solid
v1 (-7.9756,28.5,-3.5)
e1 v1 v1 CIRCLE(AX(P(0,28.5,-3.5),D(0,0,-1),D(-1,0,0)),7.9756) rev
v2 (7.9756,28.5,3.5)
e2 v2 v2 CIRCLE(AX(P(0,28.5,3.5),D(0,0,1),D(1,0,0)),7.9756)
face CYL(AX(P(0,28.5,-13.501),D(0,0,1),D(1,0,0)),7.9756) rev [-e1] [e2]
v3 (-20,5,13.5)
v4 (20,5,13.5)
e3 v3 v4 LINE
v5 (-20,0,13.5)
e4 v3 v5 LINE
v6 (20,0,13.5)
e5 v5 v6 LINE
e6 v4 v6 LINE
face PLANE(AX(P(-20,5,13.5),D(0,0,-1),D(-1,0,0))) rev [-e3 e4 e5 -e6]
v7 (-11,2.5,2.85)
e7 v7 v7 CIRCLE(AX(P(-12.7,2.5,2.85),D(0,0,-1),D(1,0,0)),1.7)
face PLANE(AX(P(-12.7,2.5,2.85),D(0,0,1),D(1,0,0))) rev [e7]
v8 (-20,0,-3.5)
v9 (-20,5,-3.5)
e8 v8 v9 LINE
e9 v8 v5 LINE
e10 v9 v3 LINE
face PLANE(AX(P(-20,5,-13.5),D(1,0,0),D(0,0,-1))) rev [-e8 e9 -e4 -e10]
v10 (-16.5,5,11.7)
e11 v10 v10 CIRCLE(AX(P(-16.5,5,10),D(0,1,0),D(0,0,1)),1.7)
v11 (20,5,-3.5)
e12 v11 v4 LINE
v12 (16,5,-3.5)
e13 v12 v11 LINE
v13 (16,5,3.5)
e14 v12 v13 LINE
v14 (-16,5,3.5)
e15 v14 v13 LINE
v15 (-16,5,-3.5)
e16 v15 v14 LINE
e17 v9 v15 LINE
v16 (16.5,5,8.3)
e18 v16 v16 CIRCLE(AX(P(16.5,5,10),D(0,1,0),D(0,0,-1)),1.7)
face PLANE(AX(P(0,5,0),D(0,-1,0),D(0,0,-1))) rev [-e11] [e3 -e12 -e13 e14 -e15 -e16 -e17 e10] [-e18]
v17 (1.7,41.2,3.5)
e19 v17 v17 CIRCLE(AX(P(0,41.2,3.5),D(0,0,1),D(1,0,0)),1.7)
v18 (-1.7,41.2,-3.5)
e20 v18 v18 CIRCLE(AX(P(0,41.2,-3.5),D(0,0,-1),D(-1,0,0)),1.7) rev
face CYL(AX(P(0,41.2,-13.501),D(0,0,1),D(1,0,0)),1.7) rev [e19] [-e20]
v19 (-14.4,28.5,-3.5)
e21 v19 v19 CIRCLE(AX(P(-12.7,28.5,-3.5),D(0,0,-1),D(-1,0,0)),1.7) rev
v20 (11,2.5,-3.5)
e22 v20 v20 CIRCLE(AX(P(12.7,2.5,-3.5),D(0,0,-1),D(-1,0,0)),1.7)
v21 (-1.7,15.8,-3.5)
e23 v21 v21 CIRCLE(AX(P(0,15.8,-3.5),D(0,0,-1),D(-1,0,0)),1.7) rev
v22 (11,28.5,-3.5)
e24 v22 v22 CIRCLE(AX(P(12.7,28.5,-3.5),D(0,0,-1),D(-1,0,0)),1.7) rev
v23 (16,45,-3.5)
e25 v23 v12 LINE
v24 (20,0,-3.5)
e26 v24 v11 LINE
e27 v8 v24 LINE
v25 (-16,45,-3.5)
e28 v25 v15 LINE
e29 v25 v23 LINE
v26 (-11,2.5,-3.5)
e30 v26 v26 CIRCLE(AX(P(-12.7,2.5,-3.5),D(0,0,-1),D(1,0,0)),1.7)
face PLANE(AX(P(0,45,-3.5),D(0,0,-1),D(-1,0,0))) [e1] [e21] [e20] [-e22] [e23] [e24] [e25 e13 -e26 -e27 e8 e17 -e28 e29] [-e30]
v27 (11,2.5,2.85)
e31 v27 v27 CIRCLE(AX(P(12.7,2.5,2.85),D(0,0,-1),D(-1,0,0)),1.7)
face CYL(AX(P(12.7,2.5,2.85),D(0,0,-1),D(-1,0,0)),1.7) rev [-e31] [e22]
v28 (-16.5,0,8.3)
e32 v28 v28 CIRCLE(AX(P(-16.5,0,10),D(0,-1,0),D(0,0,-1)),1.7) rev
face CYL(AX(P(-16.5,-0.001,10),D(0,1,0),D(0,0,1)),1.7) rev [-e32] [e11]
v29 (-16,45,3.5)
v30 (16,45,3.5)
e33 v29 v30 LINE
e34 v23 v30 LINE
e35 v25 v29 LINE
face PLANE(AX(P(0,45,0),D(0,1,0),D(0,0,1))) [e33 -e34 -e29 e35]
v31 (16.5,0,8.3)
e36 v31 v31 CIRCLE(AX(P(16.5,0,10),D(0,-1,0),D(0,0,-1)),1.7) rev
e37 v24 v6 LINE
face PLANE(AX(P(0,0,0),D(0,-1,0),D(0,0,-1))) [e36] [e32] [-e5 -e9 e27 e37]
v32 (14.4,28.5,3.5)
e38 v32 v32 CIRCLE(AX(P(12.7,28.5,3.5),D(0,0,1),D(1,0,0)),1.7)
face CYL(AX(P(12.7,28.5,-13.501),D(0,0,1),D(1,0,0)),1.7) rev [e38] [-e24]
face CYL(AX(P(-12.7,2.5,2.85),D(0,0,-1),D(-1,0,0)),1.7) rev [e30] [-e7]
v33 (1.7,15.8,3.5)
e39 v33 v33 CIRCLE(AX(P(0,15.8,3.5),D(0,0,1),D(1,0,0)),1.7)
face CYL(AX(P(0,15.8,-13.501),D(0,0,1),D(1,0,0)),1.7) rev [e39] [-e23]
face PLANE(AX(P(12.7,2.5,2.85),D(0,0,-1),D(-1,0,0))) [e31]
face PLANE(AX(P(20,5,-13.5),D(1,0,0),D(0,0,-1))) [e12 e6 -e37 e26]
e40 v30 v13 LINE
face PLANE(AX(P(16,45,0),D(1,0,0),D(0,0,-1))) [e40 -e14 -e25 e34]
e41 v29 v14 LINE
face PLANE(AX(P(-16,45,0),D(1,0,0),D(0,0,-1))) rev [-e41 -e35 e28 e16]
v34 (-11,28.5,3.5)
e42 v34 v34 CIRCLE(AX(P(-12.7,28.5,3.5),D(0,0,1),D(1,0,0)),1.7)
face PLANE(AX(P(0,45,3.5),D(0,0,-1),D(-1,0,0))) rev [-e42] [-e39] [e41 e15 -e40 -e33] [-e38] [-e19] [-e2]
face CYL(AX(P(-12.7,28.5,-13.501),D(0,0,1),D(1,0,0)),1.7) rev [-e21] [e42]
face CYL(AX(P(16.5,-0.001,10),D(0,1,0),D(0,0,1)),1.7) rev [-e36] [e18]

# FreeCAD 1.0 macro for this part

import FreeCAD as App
import Part
import Sketcher
Q = App.Units.Quantity


def add_polygon(sketch, points):
    """Adds a closed chain of lines whose ends are joined by coincident constraints."""
    first, n = sketch.GeometryCount, len(points)
    for a, b in zip(points, points[1:] + points[:1]):
        sketch.addGeometry(Part.LineSegment(App.Vector(*a, 0), App.Vector(*b, 0)), False)
    for i in range(n):
        sketch.addConstraint(Sketcher.Constraint("Coincident", first + i, 2, first + (i + 1) % n, 1))

doc = App.newDocument("Part")
params = doc.addObject("Spreadsheet::Sheet", "Params")
for row, (alias, value) in enumerate([
    ("sketch1_width", "40 mm"),
    ("sketch1_width2", "32 mm"),
    ("sketch1_height", "27 mm"),
    ("sketch1_height2", "7 mm"),
    ("pad1_length", "5 mm"),
    ("sketch2_width", "32 mm"),
    ("sketch2_height", "7 mm"),
    ("pad2_length", "45 mm"),
    ("sketch4_diameter", "3.4 mm"),
    ("sketch5_diameter", "3.4 mm"),
    ("sketch6_diameter", "3.4 mm"),
    ("sketch7_diameter", "3.4 mm"),
    ("sketch8_diameter", "3.4 mm"),
    ("sketch9_diameter", "3.4 mm"),
    ("sketch10_diameter", "3.4 mm"),
    ("sketch11_diameter", "3.4 mm"),
    ("sketch12_width", "40 mm"),
    ("sketch12_height", "10 mm"),
    ("sketch13_diameter", "3.4 mm"),
    ("pocket11_length", "6.35 mm"),
], start=1):
    params.set(f"A{row}", alias)
    params.set(f"B{row}", "=" + value)
    params.setAlias(f"B{row}", alias)

body = doc.addObject("PartDesign::Body", "Body")

# Sketch on XZ plane
sketch1 = doc.addObject("Sketcher::SketchObject", "Sketch")
body.addObject(sketch1)
sketch1.AttachmentSupport = (doc.XZ_Plane, [""])
sketch1.MapMode = "FlatFace"
add_polygon(sketch1, [(-20, -13.5), (-20, 13.5), (20, 13.5), (20, -13.5)])  # lines 0-3
add_polygon(sketch1, [(16, 3.5), (-16, 3.5), (-16, -3.5), (16, -3.5)])  # lines 4-7
sketch1.addConstraint([
    Sketcher.Constraint("Vertical", 0),
    Sketcher.Constraint("Horizontal", 1),
    Sketcher.Constraint("Vertical", 2),
    Sketcher.Constraint("Horizontal", 3),
    Sketcher.Constraint("Horizontal", 4),
    Sketcher.Constraint("Vertical", 5),
    Sketcher.Constraint("Horizontal", 6),
    Sketcher.Constraint("Vertical", 7),
    Sketcher.Constraint("Symmetric", 0, 2, 2, 2, -1, 1),
    Sketcher.Constraint("Symmetric", 4, 2, 6, 2, -1, 1),
    Sketcher.Constraint("DistanceX", 1, 1, 1, 2, Q("40 mm")),
    Sketcher.Constraint("DistanceX", 4, 2, 4, 1, Q("32 mm")),
    Sketcher.Constraint("DistanceY", 0, 1, 0, 2, Q("27 mm")),
    Sketcher.Constraint("DistanceY", 5, 2, 5, 1, Q("7 mm")),
])
sketch1.setExpression("Constraints[18]", "Params.sketch1_width")
sketch1.setExpression("Constraints[19]", "Params.sketch1_width2")
sketch1.setExpression("Constraints[20]", "Params.sketch1_height")
sketch1.setExpression("Constraints[21]", "Params.sketch1_height2")
pad1 = doc.addObject("PartDesign::Pad", "Pad")
body.addObject(pad1)
pad1.Profile = sketch1
pad1.setExpression("Length", "Params.pad1_length")
pad1.Reversed = True

# Sketch on XZ plane
sketch2 = doc.addObject("Sketcher::SketchObject", "Sketch001")
body.addObject(sketch2)
sketch2.AttachmentSupport = (doc.XZ_Plane, [""])
sketch2.MapMode = "FlatFace"
add_polygon(sketch2, [(-16, -3.5), (-16, 3.5), (16, 3.5), (16, -3.5)])  # lines 0-3
sketch2.addConstraint([
    Sketcher.Constraint("Vertical", 0),
    Sketcher.Constraint("Horizontal", 1),
    Sketcher.Constraint("Vertical", 2),
    Sketcher.Constraint("Horizontal", 3),
    Sketcher.Constraint("Symmetric", 0, 2, 2, 2, -1, 1),
    Sketcher.Constraint("DistanceX", 1, 1, 1, 2, Q("32 mm")),
    Sketcher.Constraint("DistanceY", 0, 1, 0, 2, Q("7 mm")),
])
sketch2.setExpression("Constraints[9]", "Params.sketch2_width")
sketch2.setExpression("Constraints[10]", "Params.sketch2_height")
pad2 = doc.addObject("PartDesign::Pad", "Pad001")
body.addObject(pad2)
pad2.Profile = sketch2
pad2.setExpression("Length", "Params.pad2_length")
pad2.Reversed = True

# Sketch on XY plane
sketch3 = doc.addObject("Sketcher::SketchObject", "Sketch002")
body.addObject(sketch3)
sketch3.AttachmentSupport = (doc.XY_Plane, [""])
sketch3.MapMode = "FlatFace"
sketch3.AttachmentOffset = App.Placement(App.Vector(0, 0, 3.5), App.Rotation())
sketch3.addGeometry(Part.Circle(App.Vector(0, 28.5, 0), App.Vector(0, 0, 1), 7.9756), False)
sketch3.addConstraint([
    Sketcher.Constraint("PointOnObject", 0, 3, -2),
    Sketcher.Constraint("Diameter", 0, Q("15.9512 mm")),
    Sketcher.Constraint("DistanceY", -1, 1, 0, 3, Q("28.5 mm")),
])
pocket1 = doc.addObject("PartDesign::Pocket", "Pocket")
body.addObject(pocket1)
pocket1.Profile = sketch3
pocket1.Type = "UpToFirst"

# Sketch on XY plane
sketch4 = doc.addObject("Sketcher::SketchObject", "Sketch003")
body.addObject(sketch4)
sketch4.AttachmentSupport = (doc.XY_Plane, [""])
sketch4.MapMode = "FlatFace"
sketch4.AttachmentOffset = App.Placement(App.Vector(0, 0, 3.5), App.Rotation())
sketch4.addGeometry(Part.Circle(App.Vector(0, 41.2, 0), App.Vector(0, 0, 1), 1.7), False)
sketch4.addConstraint([
    Sketcher.Constraint("PointOnObject", 0, 3, -2),
    Sketcher.Constraint("Diameter", 0, Q("3.4 mm")),
    Sketcher.Constraint("DistanceY", -1, 1, 0, 3, Q("41.2 mm")),
])
sketch4.setExpression("Constraints[1]", "Params.sketch4_diameter")
pocket2 = doc.addObject("PartDesign::Pocket", "Pocket001")
body.addObject(pocket2)
pocket2.Profile = sketch4
pocket2.Type = "UpToFirst"

# Sketch on XY plane
sketch5 = doc.addObject("Sketcher::SketchObject", "Sketch004")
body.addObject(sketch5)
sketch5.AttachmentSupport = (doc.XY_Plane, [""])
sketch5.MapMode = "FlatFace"
sketch5.AttachmentOffset = App.Placement(App.Vector(0, 0, 3.5), App.Rotation())
sketch5.addGeometry(Part.Circle(App.Vector(12.7, 28.5, 0), App.Vector(0, 0, 1), 1.7), False)
sketch5.addConstraint([
    Sketcher.Constraint("Diameter", 0, Q("3.4 mm")),
    Sketcher.Constraint("DistanceX", -1, 1, 0, 3, Q("12.7 mm")),
    Sketcher.Constraint("DistanceY", -1, 1, 0, 3, Q("28.5 mm")),
])
sketch5.setExpression("Constraints[0]", "Params.sketch5_diameter")
pocket3 = doc.addObject("PartDesign::Pocket", "Pocket002")
body.addObject(pocket3)
pocket3.Profile = sketch5
pocket3.Type = "UpToFirst"

# Sketch on XY plane
sketch6 = doc.addObject("Sketcher::SketchObject", "Sketch005")
body.addObject(sketch6)
sketch6.AttachmentSupport = (doc.XY_Plane, [""])
sketch6.MapMode = "FlatFace"
sketch6.AttachmentOffset = App.Placement(App.Vector(0, 0, 3.5), App.Rotation())
sketch6.addGeometry(Part.Circle(App.Vector(0, 15.8, 0), App.Vector(0, 0, 1), 1.7), False)
sketch6.addConstraint([
    Sketcher.Constraint("PointOnObject", 0, 3, -2),
    Sketcher.Constraint("Diameter", 0, Q("3.4 mm")),
    Sketcher.Constraint("DistanceY", -1, 1, 0, 3, Q("15.8 mm")),
])
sketch6.setExpression("Constraints[1]", "Params.sketch6_diameter")
pocket4 = doc.addObject("PartDesign::Pocket", "Pocket003")
body.addObject(pocket4)
pocket4.Profile = sketch6
pocket4.Type = "UpToFirst"

# Sketch on XY plane
sketch7 = doc.addObject("Sketcher::SketchObject", "Sketch006")
body.addObject(sketch7)
sketch7.AttachmentSupport = (doc.XY_Plane, [""])
sketch7.MapMode = "FlatFace"
sketch7.AttachmentOffset = App.Placement(App.Vector(0, 0, 3.5), App.Rotation())
sketch7.addGeometry(Part.Circle(App.Vector(-12.7, 28.5, 0), App.Vector(0, 0, 1), 1.7), False)
sketch7.addConstraint([
    Sketcher.Constraint("Diameter", 0, Q("3.4 mm")),
    Sketcher.Constraint("DistanceX", 0, 3, -1, 1, Q("12.7 mm")),
    Sketcher.Constraint("DistanceY", -1, 1, 0, 3, Q("28.5 mm")),
])
sketch7.setExpression("Constraints[0]", "Params.sketch7_diameter")
pocket5 = doc.addObject("PartDesign::Pocket", "Pocket004")
body.addObject(pocket5)
pocket5.Profile = sketch7
pocket5.Type = "UpToFirst"

# Sketch on XZ plane
sketch8 = doc.addObject("Sketcher::SketchObject", "Sketch007")
body.addObject(sketch8)
sketch8.AttachmentSupport = (doc.XZ_Plane, [""])
sketch8.MapMode = "FlatFace"
sketch8.AttachmentOffset = App.Placement(App.Vector(0, 0, -5), App.Rotation())
sketch8.addGeometry(Part.Circle(App.Vector(-16.5, -10, 0), App.Vector(0, 0, 1), 1.7), False)
sketch8.addConstraint([
    Sketcher.Constraint("Diameter", 0, Q("3.4 mm")),
    Sketcher.Constraint("DistanceY", 0, 3, -1, 1, Q("10 mm")),
    Sketcher.Constraint("DistanceX", 0, 3, -1, 1, Q("16.5 mm")),
])
sketch8.setExpression("Constraints[0]", "Params.sketch8_diameter")
pocket6 = doc.addObject("PartDesign::Pocket", "Pocket005")
body.addObject(pocket6)
pocket6.Profile = sketch8
pocket6.Type = "UpToFirst"
pocket6.Reversed = True

# Sketch on XZ plane
sketch9 = doc.addObject("Sketcher::SketchObject", "Sketch008")
body.addObject(sketch9)
sketch9.AttachmentSupport = (doc.XZ_Plane, [""])
sketch9.MapMode = "FlatFace"
sketch9.AttachmentOffset = App.Placement(App.Vector(0, 0, -5), App.Rotation())
sketch9.addGeometry(Part.Circle(App.Vector(-16.5, 10, 0), App.Vector(0, 0, 1), 1.7), False)
sketch9.addConstraint([
    Sketcher.Constraint("Diameter", 0, Q("3.4 mm")),
    Sketcher.Constraint("DistanceY", -1, 1, 0, 3, Q("10 mm")),
    Sketcher.Constraint("DistanceX", 0, 3, -1, 1, Q("16.5 mm")),
])
sketch9.setExpression("Constraints[0]", "Params.sketch9_diameter")
pocket7 = doc.addObject("PartDesign::Pocket", "Pocket006")
body.addObject(pocket7)
pocket7.Profile = sketch9
pocket7.Type = "UpToFirst"
pocket7.Reversed = True

# Sketch on XZ plane
sketch10 = doc.addObject("Sketcher::SketchObject", "Sketch009")
body.addObject(sketch10)
sketch10.AttachmentSupport = (doc.XZ_Plane, [""])
sketch10.MapMode = "FlatFace"
sketch10.AttachmentOffset = App.Placement(App.Vector(0, 0, -5), App.Rotation())
sketch10.addGeometry(Part.Circle(App.Vector(16.5, 10, 0), App.Vector(0, 0, 1), 1.7), False)
sketch10.addConstraint([
    Sketcher.Constraint("Diameter", 0, Q("3.4 mm")),
    Sketcher.Constraint("DistanceY", -1, 1, 0, 3, Q("10 mm")),
    Sketcher.Constraint("DistanceX", -1, 1, 0, 3, Q("16.5 mm")),
])
sketch10.setExpression("Constraints[0]", "Params.sketch10_diameter")
pocket8 = doc.addObject("PartDesign::Pocket", "Pocket007")
body.addObject(pocket8)
pocket8.Profile = sketch10
pocket8.Type = "UpToFirst"
pocket8.Reversed = True

# Sketch on XZ plane
sketch11 = doc.addObject("Sketcher::SketchObject", "Sketch010")
body.addObject(sketch11)
sketch11.AttachmentSupport = (doc.XZ_Plane, [""])
sketch11.MapMode = "FlatFace"
sketch11.AttachmentOffset = App.Placement(App.Vector(0, 0, -5), App.Rotation())
sketch11.addGeometry(Part.Circle(App.Vector(16.5, -10, 0), App.Vector(0, 0, 1), 1.7), False)
sketch11.addConstraint([
    Sketcher.Constraint("Diameter", 0, Q("3.4 mm")),
    Sketcher.Constraint("DistanceY", 0, 3, -1, 1, Q("10 mm")),
    Sketcher.Constraint("DistanceX", -1, 1, 0, 3, Q("16.5 mm")),
])
sketch11.setExpression("Constraints[0]", "Params.sketch11_diameter")
pocket9 = doc.addObject("PartDesign::Pocket", "Pocket008")
body.addObject(pocket9)
pocket9.Profile = sketch11
pocket9.Type = "UpToFirst"
pocket9.Reversed = True

# Sketch on XZ plane
sketch12 = doc.addObject("Sketcher::SketchObject", "Sketch011")
body.addObject(sketch12)
sketch12.AttachmentSupport = (doc.XZ_Plane, [""])
sketch12.MapMode = "FlatFace"
sketch12.AttachmentOffset = App.Placement(App.Vector(0, 0, -5), App.Rotation())
add_polygon(sketch12, [(-20, -13.5), (-20, -3.5), (20, -3.5), (20, -13.5)])  # lines 0-3
sketch12.addConstraint([
    Sketcher.Constraint("Vertical", 0),
    Sketcher.Constraint("Horizontal", 1),
    Sketcher.Constraint("Vertical", 2),
    Sketcher.Constraint("Horizontal", 3),
    Sketcher.Constraint("DistanceX", 1, 1, 1, 2, Q("40 mm")),
    Sketcher.Constraint("DistanceY", 0, 1, 0, 2, Q("10 mm")),
    Sketcher.Constraint("DistanceX", 0, 2, -1, 1, Q("20 mm")),
    Sketcher.Constraint("DistanceY", 0, 2, -1, 1, Q("3.5 mm")),
])
sketch12.setExpression("Constraints[8]", "Params.sketch12_width")
sketch12.setExpression("Constraints[9]", "Params.sketch12_height")
pocket10 = doc.addObject("PartDesign::Pocket", "Pocket009")
body.addObject(pocket10)
pocket10.Profile = sketch12
pocket10.Type = "UpToFirst"
pocket10.Reversed = True

# Sketch on XY plane
sketch13 = doc.addObject("Sketcher::SketchObject", "Sketch012")
body.addObject(sketch13)
sketch13.AttachmentSupport = (doc.XY_Plane, [""])
sketch13.MapMode = "FlatFace"
sketch13.AttachmentOffset = App.Placement(App.Vector(0, 0, -3.5), App.Rotation())
sketch13.addGeometry([
    Part.Circle(App.Vector(12.7, 2.5, 0), App.Vector(0, 0, 1), 1.7),
    Part.Circle(App.Vector(-12.7, 2.5, 0), App.Vector(0, 0, 1), 1.7),
], False)
sketch13.addConstraint([
    Sketcher.Constraint("Equal", 0, 1),
    Sketcher.Constraint("Symmetric", 0, 3, 1, 3, -2),
    Sketcher.Constraint("Diameter", 0, Q("3.4 mm")),
    Sketcher.Constraint("DistanceX", -1, 1, 0, 3, Q("12.7 mm")),
    Sketcher.Constraint("DistanceY", -1, 1, 0, 3, Q("2.5 mm")),
])
sketch13.setExpression("Constraints[2]", "Params.sketch13_diameter")
pocket11 = doc.addObject("PartDesign::Pocket", "Pocket010")
body.addObject(pocket11)
pocket11.Profile = sketch13
pocket11.setExpression("Length", "Params.pocket11_length")
pocket11.Reversed = True

doc.recompute()
